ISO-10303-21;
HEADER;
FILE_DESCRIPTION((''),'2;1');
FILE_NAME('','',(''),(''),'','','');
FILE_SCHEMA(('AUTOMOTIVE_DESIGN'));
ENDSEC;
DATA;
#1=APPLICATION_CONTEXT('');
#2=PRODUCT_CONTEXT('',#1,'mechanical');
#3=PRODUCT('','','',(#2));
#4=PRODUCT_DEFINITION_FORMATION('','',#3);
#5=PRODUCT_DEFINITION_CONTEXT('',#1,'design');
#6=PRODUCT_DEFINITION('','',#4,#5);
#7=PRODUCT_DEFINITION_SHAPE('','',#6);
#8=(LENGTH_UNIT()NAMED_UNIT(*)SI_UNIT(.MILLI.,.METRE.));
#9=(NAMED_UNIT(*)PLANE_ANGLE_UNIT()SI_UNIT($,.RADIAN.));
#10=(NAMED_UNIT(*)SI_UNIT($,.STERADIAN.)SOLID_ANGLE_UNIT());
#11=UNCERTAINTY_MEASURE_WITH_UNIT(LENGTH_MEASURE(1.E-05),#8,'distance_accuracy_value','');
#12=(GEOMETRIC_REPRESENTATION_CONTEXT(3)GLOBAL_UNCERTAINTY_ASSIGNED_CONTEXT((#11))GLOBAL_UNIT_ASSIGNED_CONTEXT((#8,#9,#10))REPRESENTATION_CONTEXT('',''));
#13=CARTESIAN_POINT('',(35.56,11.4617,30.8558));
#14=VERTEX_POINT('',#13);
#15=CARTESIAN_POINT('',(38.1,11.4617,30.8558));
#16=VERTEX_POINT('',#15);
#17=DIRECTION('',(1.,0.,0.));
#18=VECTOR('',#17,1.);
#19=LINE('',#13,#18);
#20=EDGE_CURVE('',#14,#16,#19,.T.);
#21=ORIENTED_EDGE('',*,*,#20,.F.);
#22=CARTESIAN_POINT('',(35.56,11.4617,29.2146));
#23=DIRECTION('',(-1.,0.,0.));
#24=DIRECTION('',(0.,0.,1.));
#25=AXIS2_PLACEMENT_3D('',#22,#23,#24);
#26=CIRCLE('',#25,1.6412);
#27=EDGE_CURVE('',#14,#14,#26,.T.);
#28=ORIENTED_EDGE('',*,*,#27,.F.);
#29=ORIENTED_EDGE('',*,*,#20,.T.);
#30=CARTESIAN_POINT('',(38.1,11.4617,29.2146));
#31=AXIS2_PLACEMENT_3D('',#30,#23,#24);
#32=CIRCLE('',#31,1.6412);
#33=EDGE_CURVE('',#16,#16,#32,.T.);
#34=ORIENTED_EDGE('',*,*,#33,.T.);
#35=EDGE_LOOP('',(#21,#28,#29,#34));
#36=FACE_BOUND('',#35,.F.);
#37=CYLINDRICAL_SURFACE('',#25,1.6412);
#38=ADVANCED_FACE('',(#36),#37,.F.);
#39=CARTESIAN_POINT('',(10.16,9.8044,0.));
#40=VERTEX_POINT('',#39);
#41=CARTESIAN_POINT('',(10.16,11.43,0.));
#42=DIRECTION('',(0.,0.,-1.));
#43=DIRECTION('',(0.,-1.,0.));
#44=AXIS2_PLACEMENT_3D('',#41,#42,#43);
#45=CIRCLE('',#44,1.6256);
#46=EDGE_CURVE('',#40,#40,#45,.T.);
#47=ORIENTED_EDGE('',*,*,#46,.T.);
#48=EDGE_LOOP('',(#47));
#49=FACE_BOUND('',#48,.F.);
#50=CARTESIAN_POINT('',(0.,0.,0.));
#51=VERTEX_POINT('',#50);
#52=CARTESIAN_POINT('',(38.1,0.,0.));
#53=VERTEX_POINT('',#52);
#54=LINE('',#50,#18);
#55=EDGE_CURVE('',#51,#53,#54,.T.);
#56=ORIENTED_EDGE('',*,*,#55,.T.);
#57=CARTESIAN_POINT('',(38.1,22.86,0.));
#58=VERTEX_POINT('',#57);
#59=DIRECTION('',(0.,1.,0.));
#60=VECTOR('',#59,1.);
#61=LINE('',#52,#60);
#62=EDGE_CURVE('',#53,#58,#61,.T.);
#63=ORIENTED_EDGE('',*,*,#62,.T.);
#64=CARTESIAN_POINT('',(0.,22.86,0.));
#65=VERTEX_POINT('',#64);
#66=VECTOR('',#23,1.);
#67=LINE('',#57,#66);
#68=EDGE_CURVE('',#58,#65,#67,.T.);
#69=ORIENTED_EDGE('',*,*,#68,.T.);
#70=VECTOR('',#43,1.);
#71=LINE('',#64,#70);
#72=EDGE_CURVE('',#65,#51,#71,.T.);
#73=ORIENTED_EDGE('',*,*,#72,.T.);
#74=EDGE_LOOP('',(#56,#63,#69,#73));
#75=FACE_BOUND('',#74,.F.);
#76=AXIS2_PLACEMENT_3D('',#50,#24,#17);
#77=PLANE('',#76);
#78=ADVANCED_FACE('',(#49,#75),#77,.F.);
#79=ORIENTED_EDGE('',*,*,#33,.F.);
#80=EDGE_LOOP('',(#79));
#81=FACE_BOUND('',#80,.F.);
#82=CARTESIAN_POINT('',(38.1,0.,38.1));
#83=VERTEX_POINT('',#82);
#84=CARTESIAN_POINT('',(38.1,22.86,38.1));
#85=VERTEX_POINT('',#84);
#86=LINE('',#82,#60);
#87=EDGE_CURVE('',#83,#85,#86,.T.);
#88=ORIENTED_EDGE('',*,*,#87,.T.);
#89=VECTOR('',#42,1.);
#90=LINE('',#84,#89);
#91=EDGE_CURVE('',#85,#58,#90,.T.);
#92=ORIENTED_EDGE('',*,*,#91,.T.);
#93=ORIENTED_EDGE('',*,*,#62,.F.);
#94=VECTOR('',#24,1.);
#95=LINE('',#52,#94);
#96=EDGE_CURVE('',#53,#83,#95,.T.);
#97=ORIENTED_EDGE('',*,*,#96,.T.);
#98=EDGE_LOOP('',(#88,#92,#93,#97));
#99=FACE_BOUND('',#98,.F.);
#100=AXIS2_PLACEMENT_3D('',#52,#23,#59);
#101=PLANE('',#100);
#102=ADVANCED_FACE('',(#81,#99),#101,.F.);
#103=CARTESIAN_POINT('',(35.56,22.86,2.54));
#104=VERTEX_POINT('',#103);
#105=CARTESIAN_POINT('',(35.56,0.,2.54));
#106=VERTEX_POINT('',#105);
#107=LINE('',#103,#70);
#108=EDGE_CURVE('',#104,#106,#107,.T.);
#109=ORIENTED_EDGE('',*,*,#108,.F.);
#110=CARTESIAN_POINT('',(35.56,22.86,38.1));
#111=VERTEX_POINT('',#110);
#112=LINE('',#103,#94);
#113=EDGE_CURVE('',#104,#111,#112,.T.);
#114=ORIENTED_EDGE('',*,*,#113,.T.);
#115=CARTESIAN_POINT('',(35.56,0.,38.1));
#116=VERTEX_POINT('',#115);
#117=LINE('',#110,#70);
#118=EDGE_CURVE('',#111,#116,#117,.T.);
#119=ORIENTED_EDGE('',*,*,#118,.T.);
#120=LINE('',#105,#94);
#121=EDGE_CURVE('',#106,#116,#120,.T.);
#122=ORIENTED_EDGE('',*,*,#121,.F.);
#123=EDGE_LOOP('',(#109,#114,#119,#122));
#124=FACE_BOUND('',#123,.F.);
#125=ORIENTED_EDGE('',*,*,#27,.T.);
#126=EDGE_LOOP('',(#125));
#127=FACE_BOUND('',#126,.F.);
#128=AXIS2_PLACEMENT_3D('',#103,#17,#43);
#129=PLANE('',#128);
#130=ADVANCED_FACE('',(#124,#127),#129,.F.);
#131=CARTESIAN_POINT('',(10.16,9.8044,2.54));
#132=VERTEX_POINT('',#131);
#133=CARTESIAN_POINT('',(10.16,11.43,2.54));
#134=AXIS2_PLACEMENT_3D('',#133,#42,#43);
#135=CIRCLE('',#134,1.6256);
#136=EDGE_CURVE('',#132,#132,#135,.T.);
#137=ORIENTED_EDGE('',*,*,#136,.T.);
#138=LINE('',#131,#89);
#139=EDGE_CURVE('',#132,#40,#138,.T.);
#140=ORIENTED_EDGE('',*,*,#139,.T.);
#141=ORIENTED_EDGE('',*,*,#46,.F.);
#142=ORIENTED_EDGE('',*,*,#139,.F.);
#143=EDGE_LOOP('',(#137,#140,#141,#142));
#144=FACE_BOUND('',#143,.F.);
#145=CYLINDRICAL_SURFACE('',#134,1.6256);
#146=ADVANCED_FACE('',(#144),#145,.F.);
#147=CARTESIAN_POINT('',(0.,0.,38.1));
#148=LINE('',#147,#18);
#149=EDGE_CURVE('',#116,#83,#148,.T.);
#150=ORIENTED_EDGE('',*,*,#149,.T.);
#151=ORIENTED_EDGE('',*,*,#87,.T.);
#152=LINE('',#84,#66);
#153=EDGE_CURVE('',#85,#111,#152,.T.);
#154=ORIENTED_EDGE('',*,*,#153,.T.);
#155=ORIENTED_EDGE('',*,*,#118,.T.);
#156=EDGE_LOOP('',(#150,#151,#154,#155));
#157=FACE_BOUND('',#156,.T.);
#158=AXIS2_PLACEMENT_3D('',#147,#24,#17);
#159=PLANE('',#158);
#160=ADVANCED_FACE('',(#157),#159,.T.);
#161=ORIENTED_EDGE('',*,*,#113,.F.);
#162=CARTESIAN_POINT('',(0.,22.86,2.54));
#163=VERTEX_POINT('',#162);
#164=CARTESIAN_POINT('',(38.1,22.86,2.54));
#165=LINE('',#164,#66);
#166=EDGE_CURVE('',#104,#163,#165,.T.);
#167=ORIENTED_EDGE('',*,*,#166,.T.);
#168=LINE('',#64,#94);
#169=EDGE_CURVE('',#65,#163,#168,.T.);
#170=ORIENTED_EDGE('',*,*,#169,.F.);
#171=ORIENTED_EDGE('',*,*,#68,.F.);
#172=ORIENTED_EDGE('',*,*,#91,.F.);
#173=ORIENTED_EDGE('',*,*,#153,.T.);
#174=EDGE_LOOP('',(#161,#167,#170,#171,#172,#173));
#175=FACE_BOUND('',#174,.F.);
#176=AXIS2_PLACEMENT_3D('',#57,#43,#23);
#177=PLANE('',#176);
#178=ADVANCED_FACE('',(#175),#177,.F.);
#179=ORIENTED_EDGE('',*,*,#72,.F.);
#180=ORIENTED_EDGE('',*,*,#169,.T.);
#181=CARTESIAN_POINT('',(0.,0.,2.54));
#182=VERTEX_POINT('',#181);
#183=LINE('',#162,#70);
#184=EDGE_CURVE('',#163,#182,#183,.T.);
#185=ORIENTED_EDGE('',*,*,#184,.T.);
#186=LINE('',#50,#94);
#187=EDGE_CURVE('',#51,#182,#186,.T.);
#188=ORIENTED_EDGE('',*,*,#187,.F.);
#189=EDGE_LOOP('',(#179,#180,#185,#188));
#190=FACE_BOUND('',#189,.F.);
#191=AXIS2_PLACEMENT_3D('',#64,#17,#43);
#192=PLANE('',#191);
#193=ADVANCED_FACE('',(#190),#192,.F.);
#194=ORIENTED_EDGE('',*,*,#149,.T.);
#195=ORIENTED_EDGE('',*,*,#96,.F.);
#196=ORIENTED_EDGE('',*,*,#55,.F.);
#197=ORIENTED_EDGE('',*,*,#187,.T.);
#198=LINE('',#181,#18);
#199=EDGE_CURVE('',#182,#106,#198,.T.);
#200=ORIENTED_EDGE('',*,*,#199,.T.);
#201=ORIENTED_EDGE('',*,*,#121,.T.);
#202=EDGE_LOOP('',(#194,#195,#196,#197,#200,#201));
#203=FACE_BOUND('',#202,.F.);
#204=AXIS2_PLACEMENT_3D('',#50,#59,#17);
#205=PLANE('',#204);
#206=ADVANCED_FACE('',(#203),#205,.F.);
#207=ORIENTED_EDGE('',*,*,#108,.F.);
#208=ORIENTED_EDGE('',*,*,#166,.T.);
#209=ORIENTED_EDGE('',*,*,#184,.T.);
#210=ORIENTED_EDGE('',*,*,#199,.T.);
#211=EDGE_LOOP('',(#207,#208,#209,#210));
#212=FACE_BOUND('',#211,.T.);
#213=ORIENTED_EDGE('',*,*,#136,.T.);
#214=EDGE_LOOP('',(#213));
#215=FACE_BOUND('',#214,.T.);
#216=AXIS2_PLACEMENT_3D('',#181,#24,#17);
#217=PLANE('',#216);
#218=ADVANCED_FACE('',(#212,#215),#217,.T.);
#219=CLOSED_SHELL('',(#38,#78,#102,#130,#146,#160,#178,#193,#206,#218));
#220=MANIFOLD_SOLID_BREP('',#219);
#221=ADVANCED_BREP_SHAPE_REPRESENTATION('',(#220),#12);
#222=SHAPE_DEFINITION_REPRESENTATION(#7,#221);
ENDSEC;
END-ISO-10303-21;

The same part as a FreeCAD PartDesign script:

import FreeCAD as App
import Part
import Sketcher
from FreeCAD import Vector
Q = App.Units.Quantity


def add_polygon(sketch, points):
    """Adds a closed chain of lines whose ends are joined by coincident constraints."""
    first, n = sketch.GeometryCount, len(points)
    for a, b in zip(points, points[1:] + points[:1]):
        sketch.addGeometry(Part.LineSegment(App.Vector(*a, 0), App.Vector(*b, 0)), False)
    for i in range(n):
        sketch.addConstraint(Sketcher.Constraint("Coincident", first + i, 2, first + (i + 1) % n, 1))

doc = App.newDocument("Part")
body = doc.addObject("PartDesign::Body", "Body")

# Sketch on XY plane
sketch1 = doc.addObject("Sketcher::SketchObject", "Sketch")
body.addObject(sketch1)
sketch1.AttachmentSupport = (doc.XY_Plane, [""])
sketch1.MapMode = "FlatFace"
add_polygon(sketch1, [(0, 23), (0, 0), (38, 0), (38, 23)])  # lines 0-3
sketch1.addConstraint([
    Sketcher.Constraint("Vertical", 0),
    Sketcher.Constraint("Horizontal", 1),
    Sketcher.Constraint("Vertical", 2),
    Sketcher.Constraint("Horizontal", 3),
    Sketcher.Constraint("Coincident", 0, 2, -1, 1),
    Sketcher.Constraint("DistanceX", 1, 1, 1, 2, Q("1.5 in")),
    Sketcher.Constraint("DistanceY", 0, 2, 0, 1, Q("0.9 in")),
])
pad1 = doc.addObject("PartDesign::Pad", "Pad")
body.addObject(pad1)
pad1.Profile = sketch1
pad1.Length = Q("0.1 in")

# Sketch on XY plane
sketch2 = doc.addObject("Sketcher::SketchObject", "Sketch001")
body.addObject(sketch2)
sketch2.AttachmentSupport = (doc.XY_Plane, [""])
sketch2.MapMode = "FlatFace"
sketch2.AttachmentOffset = App.Placement(Vector(0, 0, 0.1 * 25.4), App.Rotation())
add_polygon(sketch2, [(35.6, 22.9), (35.6, 0), (38.1, 0), (38.1, 22.9)])  # lines 0-3
sketch2.addConstraint([
    Sketcher.Constraint("Vertical", 0),
    Sketcher.Constraint("Horizontal", 1),
    Sketcher.Constraint("Vertical", 2),
    Sketcher.Constraint("Horizontal", 3),
    Sketcher.Constraint("PointOnObject", 0, 2, -1),
    Sketcher.Constraint("DistanceX", 1, 1, 1, 2, Q("0.1 in")),
    Sketcher.Constraint("DistanceY", 0, 2, 0, 1, Q("0.9 in")),
    Sketcher.Constraint("DistanceX", -1, 1, 0, 2, Q("1.4 in")),
])
pad2 = doc.addObject("PartDesign::Pad", "Pad001")
body.addObject(pad2)
pad2.Profile = sketch2
pad2.Length = Q("1.4 in")

# Sketch on XY plane
sketch3 = doc.addObject("Sketcher::SketchObject", "Sketch002")
body.addObject(sketch3)
sketch3.AttachmentSupport = (doc.XY_Plane, [""])
sketch3.MapMode = "FlatFace"
sketch3.AttachmentOffset = App.Placement(Vector(0, 0, 0.1 * 25.4), App.Rotation())
sketch3.addGeometry(Part.Circle(Vector(10.2, 11.4, 0), Vector(0, 0, 1), 1.6), False)
sketch3.addConstraint([
    Sketcher.Constraint("Diameter", 0, Q("0.128 in")),
    Sketcher.Constraint("DistanceX", -1, 1, 0, 3, Q("0.4 in")),
    Sketcher.Constraint("DistanceY", -1, 1, 0, 3, Q("0.45 in")),
])
doc.recompute()
hole = doc.addObject("PartDesign::Hole", "Hole")
body.addObject(hole)
hole.Profile = sketch3
hole.ThreadType = "None"
hole.Diameter = Q("0.128 in")
hole.DepthType = "ThroughAll"

# Sketch on YZ plane
sketch4 = doc.addObject("Sketcher::SketchObject", "Sketch003")
body.addObject(sketch4)
sketch4.AttachmentSupport = (doc.YZ_Plane, [""])
sketch4.MapMode = "FlatFace"
sketch4.AttachmentOffset = App.Placement(Vector(0, 0, 1.4 * 25.4), App.Rotation())
sketch4.addGeometry(Part.Circle(Vector(11.5, 29.2, 0), Vector(0, 0, 1), 1.6), False)
sketch4.addConstraint([
    Sketcher.Constraint("Diameter", 0, Q("3.2824 mm")),
    Sketcher.Constraint("DistanceX", -1, 1, 0, 3, Q("11.4617 mm")),
    Sketcher.Constraint("DistanceY", -1, 1, 0, 3, Q("29.2146 mm")),
])
pocket1 = doc.addObject("PartDesign::Pocket", "Pocket")
body.addObject(pocket1)
pocket1.Profile = sketch4
pocket1.Length = Q("1 in")
pocket1.Reversed = True

doc.recompute()
